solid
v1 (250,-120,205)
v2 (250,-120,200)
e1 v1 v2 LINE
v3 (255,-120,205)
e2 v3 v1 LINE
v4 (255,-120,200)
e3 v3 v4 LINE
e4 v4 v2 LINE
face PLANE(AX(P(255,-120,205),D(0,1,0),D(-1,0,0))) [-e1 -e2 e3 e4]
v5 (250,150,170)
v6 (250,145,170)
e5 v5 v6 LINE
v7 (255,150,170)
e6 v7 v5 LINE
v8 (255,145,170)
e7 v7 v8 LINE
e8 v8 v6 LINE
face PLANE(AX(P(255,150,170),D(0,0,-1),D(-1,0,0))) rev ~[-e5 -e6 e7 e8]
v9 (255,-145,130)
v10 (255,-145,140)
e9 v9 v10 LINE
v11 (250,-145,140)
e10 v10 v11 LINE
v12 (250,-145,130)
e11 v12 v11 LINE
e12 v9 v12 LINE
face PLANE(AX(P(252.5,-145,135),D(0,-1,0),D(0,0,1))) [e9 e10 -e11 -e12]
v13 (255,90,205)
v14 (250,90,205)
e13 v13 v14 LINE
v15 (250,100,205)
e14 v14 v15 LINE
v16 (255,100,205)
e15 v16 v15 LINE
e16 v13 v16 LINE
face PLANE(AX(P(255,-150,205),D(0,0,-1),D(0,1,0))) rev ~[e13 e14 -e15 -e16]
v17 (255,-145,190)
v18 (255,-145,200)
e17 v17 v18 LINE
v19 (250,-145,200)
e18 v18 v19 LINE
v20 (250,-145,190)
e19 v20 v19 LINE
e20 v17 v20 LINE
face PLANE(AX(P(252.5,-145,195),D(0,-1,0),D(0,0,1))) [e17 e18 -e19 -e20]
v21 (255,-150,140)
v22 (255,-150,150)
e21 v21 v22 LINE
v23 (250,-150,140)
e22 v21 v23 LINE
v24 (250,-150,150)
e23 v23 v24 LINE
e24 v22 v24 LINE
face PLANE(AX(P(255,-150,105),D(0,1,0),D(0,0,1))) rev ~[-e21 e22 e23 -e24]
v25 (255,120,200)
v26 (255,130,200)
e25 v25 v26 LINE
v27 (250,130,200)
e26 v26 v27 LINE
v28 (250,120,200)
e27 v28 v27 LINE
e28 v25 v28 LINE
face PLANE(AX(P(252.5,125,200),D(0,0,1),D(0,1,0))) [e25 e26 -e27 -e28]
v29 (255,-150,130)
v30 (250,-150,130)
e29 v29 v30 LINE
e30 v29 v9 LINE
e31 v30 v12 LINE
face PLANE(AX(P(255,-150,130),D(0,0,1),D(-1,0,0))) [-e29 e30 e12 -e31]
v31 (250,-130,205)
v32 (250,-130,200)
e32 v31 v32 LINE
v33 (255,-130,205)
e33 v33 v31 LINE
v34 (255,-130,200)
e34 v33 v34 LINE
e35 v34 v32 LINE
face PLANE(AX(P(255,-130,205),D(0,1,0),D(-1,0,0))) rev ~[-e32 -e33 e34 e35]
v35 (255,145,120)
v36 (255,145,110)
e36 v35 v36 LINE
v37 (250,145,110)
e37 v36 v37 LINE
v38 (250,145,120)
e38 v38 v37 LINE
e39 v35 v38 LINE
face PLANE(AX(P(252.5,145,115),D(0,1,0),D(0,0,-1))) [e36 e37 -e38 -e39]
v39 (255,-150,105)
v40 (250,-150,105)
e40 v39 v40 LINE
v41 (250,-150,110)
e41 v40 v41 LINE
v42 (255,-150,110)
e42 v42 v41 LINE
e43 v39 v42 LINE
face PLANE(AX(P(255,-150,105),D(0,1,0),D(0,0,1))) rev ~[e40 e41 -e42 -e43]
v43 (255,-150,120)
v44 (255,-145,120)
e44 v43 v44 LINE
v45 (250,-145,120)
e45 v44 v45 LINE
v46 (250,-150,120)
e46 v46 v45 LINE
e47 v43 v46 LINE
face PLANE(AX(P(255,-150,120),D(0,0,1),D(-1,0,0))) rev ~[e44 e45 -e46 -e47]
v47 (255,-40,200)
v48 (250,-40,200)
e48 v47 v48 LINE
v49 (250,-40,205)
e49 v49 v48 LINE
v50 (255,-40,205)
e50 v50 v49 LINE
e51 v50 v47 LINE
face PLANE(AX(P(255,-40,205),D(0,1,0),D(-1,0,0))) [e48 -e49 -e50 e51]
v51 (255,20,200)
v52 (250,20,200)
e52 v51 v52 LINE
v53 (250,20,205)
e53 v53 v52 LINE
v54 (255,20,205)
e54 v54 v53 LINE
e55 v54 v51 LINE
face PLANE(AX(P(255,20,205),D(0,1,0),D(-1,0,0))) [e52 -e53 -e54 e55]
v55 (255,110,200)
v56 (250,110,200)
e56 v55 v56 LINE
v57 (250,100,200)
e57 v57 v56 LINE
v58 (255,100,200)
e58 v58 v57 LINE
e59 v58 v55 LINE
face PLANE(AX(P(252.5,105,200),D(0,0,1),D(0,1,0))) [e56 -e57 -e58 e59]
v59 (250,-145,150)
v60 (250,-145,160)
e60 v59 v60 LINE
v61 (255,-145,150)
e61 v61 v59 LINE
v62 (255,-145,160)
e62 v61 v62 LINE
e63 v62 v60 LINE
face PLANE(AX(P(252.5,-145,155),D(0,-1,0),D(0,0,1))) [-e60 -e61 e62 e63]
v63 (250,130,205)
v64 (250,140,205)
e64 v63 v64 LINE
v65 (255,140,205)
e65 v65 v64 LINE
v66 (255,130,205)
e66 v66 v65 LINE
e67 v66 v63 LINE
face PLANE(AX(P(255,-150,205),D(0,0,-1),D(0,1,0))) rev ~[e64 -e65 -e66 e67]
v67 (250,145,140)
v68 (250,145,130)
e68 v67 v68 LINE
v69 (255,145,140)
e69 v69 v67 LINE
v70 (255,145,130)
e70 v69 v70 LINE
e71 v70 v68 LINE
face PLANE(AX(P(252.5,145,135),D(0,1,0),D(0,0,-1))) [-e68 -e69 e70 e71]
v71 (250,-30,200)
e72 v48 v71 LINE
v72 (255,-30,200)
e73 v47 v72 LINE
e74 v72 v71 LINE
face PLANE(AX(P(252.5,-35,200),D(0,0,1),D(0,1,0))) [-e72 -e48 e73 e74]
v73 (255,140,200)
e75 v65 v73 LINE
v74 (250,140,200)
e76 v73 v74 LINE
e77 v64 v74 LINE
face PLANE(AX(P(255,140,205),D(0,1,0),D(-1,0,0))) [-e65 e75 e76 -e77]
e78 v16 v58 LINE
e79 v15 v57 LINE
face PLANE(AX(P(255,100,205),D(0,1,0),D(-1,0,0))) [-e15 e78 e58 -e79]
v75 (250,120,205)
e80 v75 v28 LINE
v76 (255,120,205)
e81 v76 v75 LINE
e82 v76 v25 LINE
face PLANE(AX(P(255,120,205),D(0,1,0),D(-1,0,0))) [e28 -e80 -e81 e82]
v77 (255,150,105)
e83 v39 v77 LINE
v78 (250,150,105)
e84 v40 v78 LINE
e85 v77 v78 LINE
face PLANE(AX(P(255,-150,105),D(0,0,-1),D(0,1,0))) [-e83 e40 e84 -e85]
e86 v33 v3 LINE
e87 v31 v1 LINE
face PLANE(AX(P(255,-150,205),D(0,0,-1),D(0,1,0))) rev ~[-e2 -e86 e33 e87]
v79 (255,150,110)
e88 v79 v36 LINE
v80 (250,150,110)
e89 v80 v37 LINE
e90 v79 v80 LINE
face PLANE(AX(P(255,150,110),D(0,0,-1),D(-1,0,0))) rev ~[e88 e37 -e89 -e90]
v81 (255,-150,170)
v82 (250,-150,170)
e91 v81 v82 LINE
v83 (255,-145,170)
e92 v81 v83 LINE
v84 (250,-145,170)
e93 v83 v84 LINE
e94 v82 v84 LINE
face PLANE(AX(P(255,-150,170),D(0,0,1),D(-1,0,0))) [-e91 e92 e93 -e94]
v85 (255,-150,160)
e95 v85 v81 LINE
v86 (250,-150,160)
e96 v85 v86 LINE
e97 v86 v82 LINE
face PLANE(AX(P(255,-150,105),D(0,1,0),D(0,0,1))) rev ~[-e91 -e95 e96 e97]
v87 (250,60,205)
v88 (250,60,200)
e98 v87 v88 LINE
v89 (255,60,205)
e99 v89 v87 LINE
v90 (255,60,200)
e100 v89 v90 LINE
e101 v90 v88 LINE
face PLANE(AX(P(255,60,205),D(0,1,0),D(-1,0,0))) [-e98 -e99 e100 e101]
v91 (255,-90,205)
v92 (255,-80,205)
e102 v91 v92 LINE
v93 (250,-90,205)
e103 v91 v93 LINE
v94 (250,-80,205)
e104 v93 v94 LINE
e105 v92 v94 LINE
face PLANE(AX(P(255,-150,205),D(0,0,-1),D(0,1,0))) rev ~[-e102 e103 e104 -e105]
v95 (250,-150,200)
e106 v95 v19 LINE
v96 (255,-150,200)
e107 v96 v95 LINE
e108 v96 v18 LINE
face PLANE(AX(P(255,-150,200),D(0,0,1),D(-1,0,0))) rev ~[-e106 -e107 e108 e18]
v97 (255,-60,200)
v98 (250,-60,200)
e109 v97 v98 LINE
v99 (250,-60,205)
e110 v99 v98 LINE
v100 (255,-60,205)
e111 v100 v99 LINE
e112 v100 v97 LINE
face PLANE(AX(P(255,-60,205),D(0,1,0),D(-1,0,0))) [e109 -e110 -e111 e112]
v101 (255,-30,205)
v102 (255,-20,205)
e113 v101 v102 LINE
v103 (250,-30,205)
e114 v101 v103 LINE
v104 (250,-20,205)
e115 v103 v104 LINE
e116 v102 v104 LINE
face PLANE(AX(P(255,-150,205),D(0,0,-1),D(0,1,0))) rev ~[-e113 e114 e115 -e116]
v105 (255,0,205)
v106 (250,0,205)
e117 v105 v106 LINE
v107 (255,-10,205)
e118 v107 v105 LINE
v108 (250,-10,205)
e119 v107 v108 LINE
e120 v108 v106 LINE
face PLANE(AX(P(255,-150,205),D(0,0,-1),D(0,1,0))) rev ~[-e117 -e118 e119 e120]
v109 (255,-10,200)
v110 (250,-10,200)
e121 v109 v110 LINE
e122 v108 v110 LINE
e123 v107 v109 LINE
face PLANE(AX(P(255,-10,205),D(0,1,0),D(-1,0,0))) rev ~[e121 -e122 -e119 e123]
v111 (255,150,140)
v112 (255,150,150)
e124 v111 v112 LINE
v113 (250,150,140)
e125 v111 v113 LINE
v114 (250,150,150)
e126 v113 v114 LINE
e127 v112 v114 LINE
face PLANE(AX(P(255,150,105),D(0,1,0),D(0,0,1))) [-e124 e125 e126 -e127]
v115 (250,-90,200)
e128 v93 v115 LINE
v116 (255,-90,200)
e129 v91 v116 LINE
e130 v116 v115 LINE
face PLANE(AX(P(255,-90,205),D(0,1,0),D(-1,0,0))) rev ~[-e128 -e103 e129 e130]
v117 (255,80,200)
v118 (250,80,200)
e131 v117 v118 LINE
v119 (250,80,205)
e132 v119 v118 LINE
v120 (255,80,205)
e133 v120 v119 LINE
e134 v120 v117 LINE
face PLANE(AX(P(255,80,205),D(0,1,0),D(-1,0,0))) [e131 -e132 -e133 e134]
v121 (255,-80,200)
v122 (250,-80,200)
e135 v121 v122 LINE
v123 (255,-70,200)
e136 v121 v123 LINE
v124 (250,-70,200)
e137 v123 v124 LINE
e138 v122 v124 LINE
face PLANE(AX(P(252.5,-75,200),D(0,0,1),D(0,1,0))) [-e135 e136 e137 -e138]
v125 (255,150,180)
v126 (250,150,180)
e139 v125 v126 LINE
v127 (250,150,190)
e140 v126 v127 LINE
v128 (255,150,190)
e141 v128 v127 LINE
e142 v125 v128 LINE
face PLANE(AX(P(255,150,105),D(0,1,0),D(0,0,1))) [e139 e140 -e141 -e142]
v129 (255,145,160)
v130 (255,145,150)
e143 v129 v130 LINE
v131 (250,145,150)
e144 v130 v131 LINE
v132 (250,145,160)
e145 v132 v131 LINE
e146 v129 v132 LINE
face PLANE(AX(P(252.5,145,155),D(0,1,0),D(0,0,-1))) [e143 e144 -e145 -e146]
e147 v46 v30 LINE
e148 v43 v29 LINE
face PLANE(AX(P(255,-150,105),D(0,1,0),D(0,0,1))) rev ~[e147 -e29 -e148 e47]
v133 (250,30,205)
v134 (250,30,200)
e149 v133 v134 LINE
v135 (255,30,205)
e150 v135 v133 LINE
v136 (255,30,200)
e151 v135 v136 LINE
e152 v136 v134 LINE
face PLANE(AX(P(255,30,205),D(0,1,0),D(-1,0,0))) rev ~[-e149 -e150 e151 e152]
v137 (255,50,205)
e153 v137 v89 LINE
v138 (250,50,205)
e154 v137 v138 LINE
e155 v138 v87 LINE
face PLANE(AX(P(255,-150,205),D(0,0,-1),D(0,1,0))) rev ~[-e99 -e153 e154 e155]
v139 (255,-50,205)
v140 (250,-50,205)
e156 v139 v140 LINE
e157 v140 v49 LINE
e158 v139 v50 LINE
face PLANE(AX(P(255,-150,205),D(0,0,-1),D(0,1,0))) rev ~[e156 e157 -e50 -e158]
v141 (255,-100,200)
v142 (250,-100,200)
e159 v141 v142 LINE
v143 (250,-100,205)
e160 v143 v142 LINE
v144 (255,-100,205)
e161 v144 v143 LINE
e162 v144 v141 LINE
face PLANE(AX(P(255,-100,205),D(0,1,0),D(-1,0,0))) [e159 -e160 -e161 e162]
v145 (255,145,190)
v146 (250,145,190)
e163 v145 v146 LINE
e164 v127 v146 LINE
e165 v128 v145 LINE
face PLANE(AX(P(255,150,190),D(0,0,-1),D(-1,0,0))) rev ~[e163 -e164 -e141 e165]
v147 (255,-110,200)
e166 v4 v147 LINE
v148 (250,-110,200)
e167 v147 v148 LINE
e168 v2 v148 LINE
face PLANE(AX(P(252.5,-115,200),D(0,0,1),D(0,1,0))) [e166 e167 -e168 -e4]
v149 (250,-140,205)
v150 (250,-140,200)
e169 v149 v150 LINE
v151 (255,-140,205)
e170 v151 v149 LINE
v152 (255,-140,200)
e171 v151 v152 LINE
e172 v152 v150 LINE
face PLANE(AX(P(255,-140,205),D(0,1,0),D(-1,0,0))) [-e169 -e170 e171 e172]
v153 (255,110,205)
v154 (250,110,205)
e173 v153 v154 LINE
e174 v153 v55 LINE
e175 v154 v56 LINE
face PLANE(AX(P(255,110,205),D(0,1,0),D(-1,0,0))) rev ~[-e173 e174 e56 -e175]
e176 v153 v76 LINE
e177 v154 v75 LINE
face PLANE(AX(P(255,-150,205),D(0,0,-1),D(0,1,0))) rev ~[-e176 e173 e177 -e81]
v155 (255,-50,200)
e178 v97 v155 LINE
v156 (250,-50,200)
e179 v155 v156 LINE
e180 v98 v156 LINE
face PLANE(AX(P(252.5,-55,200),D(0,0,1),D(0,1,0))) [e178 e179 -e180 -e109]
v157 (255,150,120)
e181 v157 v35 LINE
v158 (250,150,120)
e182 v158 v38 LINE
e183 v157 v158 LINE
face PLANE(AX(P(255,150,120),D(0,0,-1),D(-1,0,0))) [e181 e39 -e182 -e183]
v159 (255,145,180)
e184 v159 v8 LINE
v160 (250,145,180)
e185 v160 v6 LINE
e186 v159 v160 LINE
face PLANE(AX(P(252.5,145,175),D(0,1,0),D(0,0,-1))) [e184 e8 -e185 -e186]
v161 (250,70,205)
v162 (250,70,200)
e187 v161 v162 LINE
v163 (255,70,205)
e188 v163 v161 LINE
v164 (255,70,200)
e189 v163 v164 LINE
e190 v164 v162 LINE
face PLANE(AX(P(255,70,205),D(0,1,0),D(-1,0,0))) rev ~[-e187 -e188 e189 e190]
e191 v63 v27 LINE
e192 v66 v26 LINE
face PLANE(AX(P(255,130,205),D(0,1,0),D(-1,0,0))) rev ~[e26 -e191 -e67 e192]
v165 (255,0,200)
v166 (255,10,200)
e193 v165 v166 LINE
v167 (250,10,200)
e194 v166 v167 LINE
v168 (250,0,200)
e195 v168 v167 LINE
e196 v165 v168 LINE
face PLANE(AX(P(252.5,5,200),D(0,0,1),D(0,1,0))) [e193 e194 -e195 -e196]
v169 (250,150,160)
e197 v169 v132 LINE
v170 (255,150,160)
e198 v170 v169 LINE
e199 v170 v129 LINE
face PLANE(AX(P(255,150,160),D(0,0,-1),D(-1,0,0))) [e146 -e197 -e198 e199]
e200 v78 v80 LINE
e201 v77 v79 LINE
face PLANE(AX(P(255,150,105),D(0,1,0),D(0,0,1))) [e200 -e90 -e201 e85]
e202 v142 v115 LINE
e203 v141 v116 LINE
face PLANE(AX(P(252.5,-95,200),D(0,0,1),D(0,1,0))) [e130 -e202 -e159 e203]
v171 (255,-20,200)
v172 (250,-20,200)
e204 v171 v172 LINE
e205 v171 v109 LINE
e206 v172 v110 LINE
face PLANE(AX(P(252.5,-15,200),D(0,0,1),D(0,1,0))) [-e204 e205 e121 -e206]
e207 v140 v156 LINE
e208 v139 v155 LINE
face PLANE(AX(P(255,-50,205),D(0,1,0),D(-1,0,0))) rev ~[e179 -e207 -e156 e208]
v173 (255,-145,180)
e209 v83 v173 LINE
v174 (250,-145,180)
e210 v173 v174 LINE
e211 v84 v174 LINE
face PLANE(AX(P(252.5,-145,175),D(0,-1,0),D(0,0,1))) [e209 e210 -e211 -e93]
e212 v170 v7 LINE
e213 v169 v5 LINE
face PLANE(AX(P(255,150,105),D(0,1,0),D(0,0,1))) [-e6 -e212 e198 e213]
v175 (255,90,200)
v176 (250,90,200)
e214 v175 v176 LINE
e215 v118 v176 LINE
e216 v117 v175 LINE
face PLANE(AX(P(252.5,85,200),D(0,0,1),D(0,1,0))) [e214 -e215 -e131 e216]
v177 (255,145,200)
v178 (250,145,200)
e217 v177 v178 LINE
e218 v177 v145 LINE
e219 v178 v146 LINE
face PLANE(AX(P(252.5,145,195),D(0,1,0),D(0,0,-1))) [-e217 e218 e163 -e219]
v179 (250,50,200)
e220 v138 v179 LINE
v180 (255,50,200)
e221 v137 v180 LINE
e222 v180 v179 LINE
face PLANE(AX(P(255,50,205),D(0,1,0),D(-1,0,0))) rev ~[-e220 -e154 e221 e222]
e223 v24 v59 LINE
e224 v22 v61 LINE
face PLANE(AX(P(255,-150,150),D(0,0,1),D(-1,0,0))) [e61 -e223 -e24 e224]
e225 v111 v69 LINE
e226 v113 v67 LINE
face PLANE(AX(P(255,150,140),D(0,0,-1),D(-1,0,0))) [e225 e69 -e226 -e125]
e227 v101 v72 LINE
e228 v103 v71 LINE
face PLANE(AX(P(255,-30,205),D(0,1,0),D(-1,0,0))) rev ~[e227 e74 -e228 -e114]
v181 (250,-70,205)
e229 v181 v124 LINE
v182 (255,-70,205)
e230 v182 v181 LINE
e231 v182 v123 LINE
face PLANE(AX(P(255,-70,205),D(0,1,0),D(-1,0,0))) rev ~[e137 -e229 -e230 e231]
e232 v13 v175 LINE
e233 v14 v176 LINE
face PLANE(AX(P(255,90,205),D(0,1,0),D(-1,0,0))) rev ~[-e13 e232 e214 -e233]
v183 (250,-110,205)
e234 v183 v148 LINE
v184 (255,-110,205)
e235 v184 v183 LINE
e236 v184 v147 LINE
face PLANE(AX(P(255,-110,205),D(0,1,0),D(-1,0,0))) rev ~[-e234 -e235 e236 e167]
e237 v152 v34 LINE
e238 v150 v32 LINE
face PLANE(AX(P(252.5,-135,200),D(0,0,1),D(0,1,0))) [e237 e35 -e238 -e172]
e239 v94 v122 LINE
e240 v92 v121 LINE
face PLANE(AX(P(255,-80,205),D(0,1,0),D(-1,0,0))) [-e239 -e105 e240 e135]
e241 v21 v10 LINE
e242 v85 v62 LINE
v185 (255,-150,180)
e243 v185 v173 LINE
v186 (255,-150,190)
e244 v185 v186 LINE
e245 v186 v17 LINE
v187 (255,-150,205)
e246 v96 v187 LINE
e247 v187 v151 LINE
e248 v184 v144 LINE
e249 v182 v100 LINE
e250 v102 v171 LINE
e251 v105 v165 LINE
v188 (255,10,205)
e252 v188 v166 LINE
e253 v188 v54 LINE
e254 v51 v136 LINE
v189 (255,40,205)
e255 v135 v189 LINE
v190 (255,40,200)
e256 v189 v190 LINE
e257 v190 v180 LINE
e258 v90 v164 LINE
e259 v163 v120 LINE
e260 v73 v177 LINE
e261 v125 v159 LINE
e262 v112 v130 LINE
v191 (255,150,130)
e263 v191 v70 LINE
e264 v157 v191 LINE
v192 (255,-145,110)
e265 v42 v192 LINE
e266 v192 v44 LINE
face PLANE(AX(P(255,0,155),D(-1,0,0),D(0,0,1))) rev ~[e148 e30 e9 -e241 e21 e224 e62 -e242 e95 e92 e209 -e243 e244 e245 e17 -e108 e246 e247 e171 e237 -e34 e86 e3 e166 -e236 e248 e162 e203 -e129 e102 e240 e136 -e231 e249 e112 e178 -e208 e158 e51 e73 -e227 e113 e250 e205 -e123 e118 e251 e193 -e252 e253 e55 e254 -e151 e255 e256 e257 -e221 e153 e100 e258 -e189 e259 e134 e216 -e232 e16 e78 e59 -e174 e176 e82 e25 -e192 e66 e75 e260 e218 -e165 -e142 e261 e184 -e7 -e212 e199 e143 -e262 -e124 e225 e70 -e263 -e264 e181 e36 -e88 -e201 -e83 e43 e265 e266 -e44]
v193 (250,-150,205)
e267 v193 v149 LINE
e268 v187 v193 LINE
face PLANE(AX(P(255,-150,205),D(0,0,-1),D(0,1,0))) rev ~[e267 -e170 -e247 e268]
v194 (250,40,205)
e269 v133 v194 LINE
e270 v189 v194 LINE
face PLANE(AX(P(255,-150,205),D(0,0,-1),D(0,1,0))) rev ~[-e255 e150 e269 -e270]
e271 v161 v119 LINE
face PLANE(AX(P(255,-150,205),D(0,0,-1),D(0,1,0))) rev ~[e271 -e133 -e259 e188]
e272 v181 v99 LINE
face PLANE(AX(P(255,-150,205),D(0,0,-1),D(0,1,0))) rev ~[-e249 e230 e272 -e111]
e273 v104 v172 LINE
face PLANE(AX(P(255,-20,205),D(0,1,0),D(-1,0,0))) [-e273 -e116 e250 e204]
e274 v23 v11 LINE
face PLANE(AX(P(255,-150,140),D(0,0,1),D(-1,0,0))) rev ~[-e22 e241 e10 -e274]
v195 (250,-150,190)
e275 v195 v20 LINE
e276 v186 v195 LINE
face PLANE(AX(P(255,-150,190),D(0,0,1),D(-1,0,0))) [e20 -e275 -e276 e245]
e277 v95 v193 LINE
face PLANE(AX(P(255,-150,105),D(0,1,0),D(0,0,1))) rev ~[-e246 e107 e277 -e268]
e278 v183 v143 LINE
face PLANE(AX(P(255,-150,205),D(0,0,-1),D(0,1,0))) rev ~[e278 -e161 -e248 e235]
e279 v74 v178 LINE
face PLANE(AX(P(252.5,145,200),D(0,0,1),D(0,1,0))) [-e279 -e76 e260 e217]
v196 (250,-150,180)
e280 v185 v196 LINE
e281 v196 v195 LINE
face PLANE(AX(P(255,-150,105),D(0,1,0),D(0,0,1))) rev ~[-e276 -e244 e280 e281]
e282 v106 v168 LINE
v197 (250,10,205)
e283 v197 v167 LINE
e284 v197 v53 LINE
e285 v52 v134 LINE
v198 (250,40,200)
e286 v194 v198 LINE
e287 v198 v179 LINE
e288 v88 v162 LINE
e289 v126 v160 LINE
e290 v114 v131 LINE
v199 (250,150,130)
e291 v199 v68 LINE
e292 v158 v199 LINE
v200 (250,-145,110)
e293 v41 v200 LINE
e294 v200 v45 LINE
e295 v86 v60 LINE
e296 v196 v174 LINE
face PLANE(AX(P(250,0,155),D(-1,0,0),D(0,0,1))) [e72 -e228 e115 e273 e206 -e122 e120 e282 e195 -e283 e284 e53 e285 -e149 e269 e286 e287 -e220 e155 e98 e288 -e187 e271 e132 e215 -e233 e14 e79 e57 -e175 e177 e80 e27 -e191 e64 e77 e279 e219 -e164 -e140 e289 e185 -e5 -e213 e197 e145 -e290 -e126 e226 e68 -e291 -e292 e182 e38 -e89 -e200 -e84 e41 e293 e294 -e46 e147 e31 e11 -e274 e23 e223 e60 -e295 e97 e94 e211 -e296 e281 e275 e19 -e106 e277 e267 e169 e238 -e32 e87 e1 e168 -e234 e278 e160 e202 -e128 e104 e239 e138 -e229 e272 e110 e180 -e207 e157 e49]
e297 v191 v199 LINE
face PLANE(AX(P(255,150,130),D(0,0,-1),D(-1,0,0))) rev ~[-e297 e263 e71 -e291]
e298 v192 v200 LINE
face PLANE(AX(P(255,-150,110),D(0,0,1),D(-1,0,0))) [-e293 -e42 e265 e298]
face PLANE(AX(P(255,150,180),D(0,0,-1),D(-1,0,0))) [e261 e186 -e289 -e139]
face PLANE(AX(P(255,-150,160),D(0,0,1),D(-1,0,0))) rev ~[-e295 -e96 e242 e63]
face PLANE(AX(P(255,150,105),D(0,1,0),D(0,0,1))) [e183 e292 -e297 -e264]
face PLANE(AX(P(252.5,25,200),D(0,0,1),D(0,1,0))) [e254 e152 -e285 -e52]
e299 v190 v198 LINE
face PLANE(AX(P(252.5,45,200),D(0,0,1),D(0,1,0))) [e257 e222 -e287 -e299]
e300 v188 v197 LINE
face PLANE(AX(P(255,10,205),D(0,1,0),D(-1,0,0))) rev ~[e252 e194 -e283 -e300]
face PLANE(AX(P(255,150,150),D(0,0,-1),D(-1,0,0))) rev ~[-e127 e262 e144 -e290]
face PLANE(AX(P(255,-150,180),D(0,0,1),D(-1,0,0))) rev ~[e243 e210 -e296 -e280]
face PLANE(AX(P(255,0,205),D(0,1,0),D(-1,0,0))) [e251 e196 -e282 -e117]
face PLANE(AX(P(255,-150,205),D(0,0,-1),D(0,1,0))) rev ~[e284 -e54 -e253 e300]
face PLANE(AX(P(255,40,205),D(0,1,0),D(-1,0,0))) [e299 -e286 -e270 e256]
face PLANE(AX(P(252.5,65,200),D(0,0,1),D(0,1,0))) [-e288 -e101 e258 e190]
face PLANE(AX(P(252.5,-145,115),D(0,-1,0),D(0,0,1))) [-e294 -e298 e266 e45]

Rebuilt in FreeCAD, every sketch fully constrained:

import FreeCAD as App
import Part
import Sketcher
from FreeCAD import Vector


def add_polygon(sketch, points):
    """Adds a closed chain of lines whose ends are joined by coincident constraints."""
    first, n = sketch.GeometryCount, len(points)
    for a, b in zip(points, points[1:] + points[:1]):
        sketch.addGeometry(Part.LineSegment(App.Vector(*a, 0), App.Vector(*b, 0)), False)
    for i in range(n):
        sketch.addConstraint(Sketcher.Constraint("Coincident", first + i, 2, first + (i + 1) % n, 1))

doc = App.newDocument("Part")
body = doc.addObject("PartDesign::Body", "Body")

# Sketch on XY plane
sketch1 = doc.addObject("Sketcher::SketchObject", "Sketch")
body.addObject(sketch1)
sketch1.AttachmentSupport = (doc.XY_Plane, [""])
sketch1.MapMode = "FlatFace"
add_polygon(sketch1, [(-50, 150), (-50, -150), (50, -150), (50, 150)])  # lines 0-3
sketch1.addConstraint([
    Sketcher.Constraint("Vertical", 0),
    Sketcher.Constraint("Horizontal", 1),
    Sketcher.Constraint("Vertical", 2),
    Sketcher.Constraint("Horizontal", 3),
    Sketcher.Constraint("Symmetric", 0, 2, 2, 2, -1, 1),
    Sketcher.Constraint("DistanceX", 1, 1, 1, 2, 100.0),
    Sketcher.Constraint("DistanceY", 0, 2, 0, 1, 300.0),
])
pad1 = doc.addObject("PartDesign::Pad", "Pad")
body.addObject(pad1)
pad1.Profile = sketch1
pad1.Length = 5

# Sketch on XZ plane
sketch2 = doc.addObject("Sketcher::SketchObject", "Sketch001")
body.addObject(sketch2)
sketch2.AttachmentSupport = (doc.XZ_Plane, [""])
sketch2.MapMode = "FlatFace"
sketch2.AttachmentOffset = App.Placement(Vector(0, 0, 150), App.Rotation())
add_polygon(sketch2, [(-45, 5), (-45, 0), (-35, 0), (-35, 5)])  # lines 0-3
sketch2.addConstraint([
    Sketcher.Constraint("Vertical", 0),
    Sketcher.Constraint("Horizontal", 1),
    Sketcher.Constraint("Vertical", 2),
    Sketcher.Constraint("Horizontal", 3),
    Sketcher.Constraint("PointOnObject", 0, 2, -1),
    Sketcher.Constraint("DistanceX", 1, 1, 1, 2, 10.0),
    Sketcher.Constraint("DistanceY", 0, 2, 0, 1, 5.0),
    Sketcher.Constraint("DistanceX", 0, 2, -1, 1, 45.0),
])
pocket1 = doc.addObject("PartDesign::Pocket", "Pocket")
body.addObject(pocket1)
pocket1.Profile = sketch2
pocket1.Length = 5
doc.recompute()

linearpattern = doc.addObject("PartDesign::LinearPattern", "LinearPattern")
body.addObject(linearpattern)
linearpattern.Originals = [pocket1]
linearpattern.Direction = (doc.X_Axis, [""])
linearpattern.Mode = "offset"
linearpattern.Offset = 20
linearpattern.Occurrences = 5
body.Tip = linearpattern

# Sketch on XZ plane
sketch3 = doc.addObject("Sketcher::SketchObject", "Sketch002")
body.addObject(sketch3)
sketch3.AttachmentSupport = (doc.XZ_Plane, [""])
sketch3.MapMode = "FlatFace"
sketch3.AttachmentOffset = App.Placement(Vector(0, 0, -150), App.Rotation())
add_polygon(sketch3, [(45, 5), (45, 0), (35, 0), (35, 5)])  # lines 0-3
sketch3.addConstraint([
    Sketcher.Constraint("Vertical", 0),
    Sketcher.Constraint("Horizontal", 1),
    Sketcher.Constraint("Vertical", 2),
    Sketcher.Constraint("Horizontal", 3),
    Sketcher.Constraint("PointOnObject", 0, 2, -1),
    Sketcher.Constraint("DistanceX", 1, 2, 1, 1, 10.0),
    Sketcher.Constraint("DistanceY", 0, 2, 0, 1, 5.0),
    Sketcher.Constraint("DistanceX", -1, 1, 0, 2, 45.0),
])
pocket2 = doc.addObject("PartDesign::Pocket", "Pocket001")
body.addObject(pocket2)
pocket2.Profile = sketch3
pocket2.Length = 5
pocket2.Reversed = True
doc.recompute()

linearpattern2 = doc.addObject("PartDesign::LinearPattern", "LinearPattern001")
body.addObject(linearpattern2)
linearpattern2.Originals = [pocket2]
linearpattern2.Direction = (doc.X_Axis, [""])
linearpattern2.Mode = "offset"
linearpattern2.Offset = 20
linearpattern2.Occurrences = 5
linearpattern2.Reversed = True
body.Tip = linearpattern2

# Sketch on YZ plane
sketch4 = doc.addObject("Sketcher::SketchObject", "Sketch003")
body.addObject(sketch4)
sketch4.AttachmentSupport = (doc.YZ_Plane, [""])
sketch4.MapMode = "FlatFace"
sketch4.AttachmentOffset = App.Placement(Vector(0, 0, 50), App.Rotation())
add_polygon(sketch4, [(-140, 5), (-140, 0), (-130, 0), (-130, 5)])  # lines 0-3
sketch4.addConstraint([
    Sketcher.Constraint("Vertical", 0),
    Sketcher.Constraint("Horizontal", 1),
    Sketcher.Constraint("Vertical", 2),
    Sketcher.Constraint("Horizontal", 3),
    Sketcher.Constraint("PointOnObject", 0, 2, -1),
    Sketcher.Constraint("DistanceX", 1, 1, 1, 2, 10.0),
    Sketcher.Constraint("DistanceY", 0, 2, 0, 1, 5.0),
    Sketcher.Constraint("DistanceX", 0, 2, -1, 1, 140.0),
])
pocket3 = doc.addObject("PartDesign::Pocket", "Pocket002")
body.addObject(pocket3)
pocket3.Profile = sketch4
pocket3.Length = 5
doc.recompute()

linearpattern3 = doc.addObject("PartDesign::LinearPattern", "LinearPattern002")
body.addObject(linearpattern3)
linearpattern3.Originals = [pocket3]
linearpattern3.Direction = (doc.Y_Axis, [""])
linearpattern3.Mode = "offset"
linearpattern3.Offset = 20
linearpattern3.Occurrences = 15
body.Tip = linearpattern3
body2 = doc.addObject("PartDesign::Body", "Body001")
doc.recompute()

body.Placement = App.Placement(Vector(255, 0, 155), App.Rotation(Vector(0, -1, 0), 90))
boolean = doc.addObject("PartDesign::Boolean", "Boolean")
body2.addObject(boolean)
boolean.Type = "Fuse"
boolean.addObjects([body])

doc.recompute()
